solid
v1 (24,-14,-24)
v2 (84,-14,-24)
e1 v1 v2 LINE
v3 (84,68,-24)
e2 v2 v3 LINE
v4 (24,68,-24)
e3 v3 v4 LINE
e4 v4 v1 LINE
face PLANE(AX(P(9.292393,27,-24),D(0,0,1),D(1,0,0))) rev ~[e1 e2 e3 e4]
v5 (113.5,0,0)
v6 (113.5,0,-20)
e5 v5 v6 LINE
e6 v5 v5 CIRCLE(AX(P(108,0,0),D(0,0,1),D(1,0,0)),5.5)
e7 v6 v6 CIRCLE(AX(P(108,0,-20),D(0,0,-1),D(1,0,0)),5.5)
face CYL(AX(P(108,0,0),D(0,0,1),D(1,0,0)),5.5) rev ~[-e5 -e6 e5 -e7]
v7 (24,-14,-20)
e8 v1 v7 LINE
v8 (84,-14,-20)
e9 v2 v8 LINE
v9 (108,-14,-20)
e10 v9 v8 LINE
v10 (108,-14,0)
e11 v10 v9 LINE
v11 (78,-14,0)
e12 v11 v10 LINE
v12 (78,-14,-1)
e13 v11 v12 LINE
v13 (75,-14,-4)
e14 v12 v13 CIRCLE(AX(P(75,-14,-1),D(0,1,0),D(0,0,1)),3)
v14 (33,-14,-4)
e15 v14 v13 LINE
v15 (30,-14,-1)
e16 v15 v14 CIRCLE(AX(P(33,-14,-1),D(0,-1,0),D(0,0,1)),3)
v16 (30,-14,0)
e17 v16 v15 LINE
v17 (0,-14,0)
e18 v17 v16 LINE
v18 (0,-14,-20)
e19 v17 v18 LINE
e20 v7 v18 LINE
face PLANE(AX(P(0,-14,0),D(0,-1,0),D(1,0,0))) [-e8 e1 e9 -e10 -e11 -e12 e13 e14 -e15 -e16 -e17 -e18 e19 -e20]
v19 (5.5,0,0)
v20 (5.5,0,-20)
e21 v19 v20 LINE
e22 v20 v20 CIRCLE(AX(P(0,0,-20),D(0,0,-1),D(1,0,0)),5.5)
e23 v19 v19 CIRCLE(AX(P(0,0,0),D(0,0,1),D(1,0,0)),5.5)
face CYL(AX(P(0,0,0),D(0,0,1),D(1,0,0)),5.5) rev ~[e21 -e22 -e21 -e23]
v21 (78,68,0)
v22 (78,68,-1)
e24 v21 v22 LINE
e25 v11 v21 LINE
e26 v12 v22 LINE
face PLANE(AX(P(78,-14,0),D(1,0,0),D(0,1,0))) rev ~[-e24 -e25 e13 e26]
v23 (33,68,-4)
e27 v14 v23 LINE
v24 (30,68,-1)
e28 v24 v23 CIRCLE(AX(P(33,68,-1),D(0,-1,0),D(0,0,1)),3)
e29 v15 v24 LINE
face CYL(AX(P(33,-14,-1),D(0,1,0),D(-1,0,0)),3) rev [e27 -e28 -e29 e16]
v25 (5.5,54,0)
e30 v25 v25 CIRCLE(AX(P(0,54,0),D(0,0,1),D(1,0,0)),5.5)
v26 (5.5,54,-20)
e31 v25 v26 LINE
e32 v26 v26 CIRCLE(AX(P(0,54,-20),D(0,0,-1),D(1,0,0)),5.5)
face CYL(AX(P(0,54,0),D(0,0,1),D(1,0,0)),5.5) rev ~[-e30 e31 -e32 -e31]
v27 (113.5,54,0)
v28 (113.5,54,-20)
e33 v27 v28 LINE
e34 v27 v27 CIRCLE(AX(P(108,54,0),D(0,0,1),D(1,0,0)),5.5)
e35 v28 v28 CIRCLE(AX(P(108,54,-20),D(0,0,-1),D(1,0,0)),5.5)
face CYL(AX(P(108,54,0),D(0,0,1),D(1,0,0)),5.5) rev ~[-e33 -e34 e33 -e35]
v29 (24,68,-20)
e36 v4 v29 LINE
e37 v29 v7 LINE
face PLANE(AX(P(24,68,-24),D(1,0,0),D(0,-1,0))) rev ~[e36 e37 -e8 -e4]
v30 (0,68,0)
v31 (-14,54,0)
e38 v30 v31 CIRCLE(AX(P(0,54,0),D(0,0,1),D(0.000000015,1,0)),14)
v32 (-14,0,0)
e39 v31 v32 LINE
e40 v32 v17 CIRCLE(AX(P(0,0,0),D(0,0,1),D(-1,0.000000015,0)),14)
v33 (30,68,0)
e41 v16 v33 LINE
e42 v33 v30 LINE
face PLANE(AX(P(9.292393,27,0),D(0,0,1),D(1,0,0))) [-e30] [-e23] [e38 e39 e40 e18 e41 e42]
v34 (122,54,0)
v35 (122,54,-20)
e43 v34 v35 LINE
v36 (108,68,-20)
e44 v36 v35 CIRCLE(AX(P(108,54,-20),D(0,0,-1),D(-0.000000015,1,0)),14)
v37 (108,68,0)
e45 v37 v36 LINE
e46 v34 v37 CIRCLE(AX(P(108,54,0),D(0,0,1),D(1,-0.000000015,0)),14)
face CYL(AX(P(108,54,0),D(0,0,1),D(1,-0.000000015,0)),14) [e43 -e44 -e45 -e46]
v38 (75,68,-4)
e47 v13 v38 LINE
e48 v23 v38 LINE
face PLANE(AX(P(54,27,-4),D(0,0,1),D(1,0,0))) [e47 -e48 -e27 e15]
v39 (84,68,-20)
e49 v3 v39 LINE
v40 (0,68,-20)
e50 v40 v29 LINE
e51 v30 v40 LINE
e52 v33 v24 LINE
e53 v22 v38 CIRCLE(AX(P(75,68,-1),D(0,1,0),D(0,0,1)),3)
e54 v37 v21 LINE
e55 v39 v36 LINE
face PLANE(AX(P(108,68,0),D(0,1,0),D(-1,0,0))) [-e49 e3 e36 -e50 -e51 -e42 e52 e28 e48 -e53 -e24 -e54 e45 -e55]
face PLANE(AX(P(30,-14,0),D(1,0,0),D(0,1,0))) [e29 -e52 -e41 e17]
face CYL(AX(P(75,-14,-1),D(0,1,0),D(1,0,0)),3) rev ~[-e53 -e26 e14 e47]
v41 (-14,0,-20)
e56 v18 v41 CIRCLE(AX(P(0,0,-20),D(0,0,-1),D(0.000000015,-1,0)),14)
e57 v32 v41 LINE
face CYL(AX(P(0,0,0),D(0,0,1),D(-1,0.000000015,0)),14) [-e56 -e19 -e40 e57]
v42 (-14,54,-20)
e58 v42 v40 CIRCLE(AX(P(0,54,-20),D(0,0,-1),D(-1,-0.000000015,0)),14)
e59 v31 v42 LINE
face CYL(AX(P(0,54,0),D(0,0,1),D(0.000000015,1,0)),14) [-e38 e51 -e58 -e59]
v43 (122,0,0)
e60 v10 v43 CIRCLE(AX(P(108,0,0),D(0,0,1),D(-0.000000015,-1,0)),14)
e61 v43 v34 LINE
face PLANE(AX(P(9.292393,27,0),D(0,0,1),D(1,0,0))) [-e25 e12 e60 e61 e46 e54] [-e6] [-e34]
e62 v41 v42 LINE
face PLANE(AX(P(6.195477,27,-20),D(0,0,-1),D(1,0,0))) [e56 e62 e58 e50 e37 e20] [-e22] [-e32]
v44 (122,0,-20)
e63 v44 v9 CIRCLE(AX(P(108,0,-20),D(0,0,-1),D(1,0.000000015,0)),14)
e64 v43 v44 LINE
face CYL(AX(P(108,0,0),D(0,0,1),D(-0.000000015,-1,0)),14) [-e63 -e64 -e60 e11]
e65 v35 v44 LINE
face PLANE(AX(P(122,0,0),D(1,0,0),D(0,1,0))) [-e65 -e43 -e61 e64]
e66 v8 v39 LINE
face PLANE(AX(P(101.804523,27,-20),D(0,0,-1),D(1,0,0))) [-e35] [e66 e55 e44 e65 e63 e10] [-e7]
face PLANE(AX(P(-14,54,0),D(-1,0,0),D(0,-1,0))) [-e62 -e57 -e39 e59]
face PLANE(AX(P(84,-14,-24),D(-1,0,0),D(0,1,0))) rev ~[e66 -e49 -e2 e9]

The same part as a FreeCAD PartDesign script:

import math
import FreeCAD as App
import Part
import Sketcher

V = App.Vector
Q = App.Units.Quantity


def edges_at(feature, points):
    """Names of the edges that pass closest to the given points."""
    edges = feature.Shape.Edges
    near = lambda p: min(range(len(edges)), key=lambda i: edges[i].distToShape(Part.Vertex(*p))[0])
    return sorted({f"Edge{near(p) + 1}" for p in points})


def add_polygon(sketch, points):
    """Adds a closed chain of lines whose ends are joined by coincident constraints."""
    first, n = sketch.GeometryCount, len(points)
    for a, b in zip(points, points[1:] + points[:1]):
        sketch.addGeometry(Part.LineSegment(App.Vector(*a, 0), App.Vector(*b, 0)), False)
    for i in range(n):
        sketch.addConstraint(Sketcher.Constraint("Coincident", first + i, 2, first + (i + 1) % n, 1))

doc = App.newDocument("Part")
body = doc.addObject("PartDesign::Body", "Body")

# Sketch on XY plane
sketch1 = body.newObject("Sketcher::SketchObject", "Sketch")
sketch1.AttachmentSupport = (doc.getObject("XY_Plane"), [""])
sketch1.MapMode = "FlatFace"
sketch1.addGeometry([
    Part.LineSegment(V(-14, 54, 0), V(-14, 0, 0)),  # 0
    Part.ArcOfCircle(Part.Circle(V(0, 0, 0), V(0, 0, 1), 14), math.radians(180), math.radians(270)),  # 1
    Part.LineSegment(V(0, -14, 0), V(108, -14, 0)),  # 2
    Part.ArcOfCircle(Part.Circle(V(108, 0, 0), V(0, 0, 1), 14), math.radians(-90), math.radians(0)),  # 3
    Part.LineSegment(V(122, 0, 0), V(122, 54, 0)),  # 4
    Part.ArcOfCircle(Part.Circle(V(108, 54, 0), V(0, 0, 1), 14), math.radians(0), math.radians(90)),  # 5
    Part.LineSegment(V(108, 68, 0), V(0, 68, 0)),  # 6
    Part.ArcOfCircle(Part.Circle(V(0, 54, 0), V(0, 0, 1), 14), math.radians(90), math.radians(180)),  # 7
    Part.Circle(V(0, 0, 0), V(0, 0, 1), 6),  # 8
    Part.Circle(V(108, 0, 0), V(0, 0, 1), 6),  # 9
    Part.Circle(V(0, 54, 0), V(0, 0, 1), 6),  # 10
    Part.Circle(V(108, 54, 0), V(0, 0, 1), 6),  # 11
], False)
sketch1.addConstraint([
    Sketcher.Constraint("Tangent", 0, 2, 1, 1),
    Sketcher.Constraint("Tangent", 1, 2, 2, 1),
    Sketcher.Constraint("Tangent", 2, 2, 3, 1),
    Sketcher.Constraint("Tangent", 3, 2, 4, 1),
    Sketcher.Constraint("Tangent", 4, 2, 5, 1),
    Sketcher.Constraint("Tangent", 5, 2, 6, 1),
    Sketcher.Constraint("Tangent", 6, 2, 7, 1),
    Sketcher.Constraint("Tangent", 7, 2, 0, 1),
    Sketcher.Constraint("Vertical", 0),
    Sketcher.Constraint("Horizontal", 2),
    Sketcher.Constraint("Vertical", 4),
    Sketcher.Constraint("Horizontal", 6),
    Sketcher.Constraint("Coincident", 1, 3, -1, 1),
    Sketcher.Constraint("Coincident", 8, 3, -1, 1),
    Sketcher.Constraint("Coincident", 9, 3, 3, 3),
    Sketcher.Constraint("Coincident", 10, 3, 7, 3),
    Sketcher.Constraint("Coincident", 11, 3, 5, 3),
    Sketcher.Constraint("Equal", 1, 3),
    Sketcher.Constraint("Equal", 3, 5),
    Sketcher.Constraint("Equal", 5, 7),
    Sketcher.Constraint("Equal", 8, 9),
    Sketcher.Constraint("Equal", 9, 10),
    Sketcher.Constraint("Equal", 10, 11),
    Sketcher.Constraint("Diameter", 8, Q("11 mm")),
    Sketcher.Constraint("Radius", 1, Q("14 mm")),
    Sketcher.Constraint("DistanceX", 2, 1, 2, 2, Q("108 mm")),
    Sketcher.Constraint("DistanceY", 0, 2, 0, 1, Q("54 mm")),
])
pad1 = body.newObject("PartDesign::Pad", "Pad")
pad1.Profile = sketch1
pad1.Length = 24
pad1.Reversed = True

# Sketch on XY plane
sketch2 = body.newObject("Sketcher::SketchObject", "Sketch001")
sketch2.AttachmentSupport = (doc.getObject("XY_Plane"), [""])
sketch2.MapMode = "FlatFace"
add_polygon(sketch2, [(30, 68), (30, -14), (78, -14), (78, 68)])  # lines 0-3
sketch2.addConstraint([
    Sketcher.Constraint("Vertical", 0),
    Sketcher.Constraint("Horizontal", 1),
    Sketcher.Constraint("Vertical", 2),
    Sketcher.Constraint("Horizontal", 3),
    Sketcher.Constraint("DistanceX", 1, 1, 1, 2, Q("48 mm")),
    Sketcher.Constraint("DistanceY", 0, 2, 0, 1, Q("82 mm")),
    Sketcher.Constraint("DistanceX", -1, 1, 0, 2, Q("30 mm")),
    Sketcher.Constraint("DistanceY", 0, 2, -1, 1, Q("14 mm")),
])
pocket1 = body.newObject("PartDesign::Pocket", "Pocket")
pocket1.Profile = sketch2
pocket1.Length = 4
doc.recompute()

fillet = body.newObject("PartDesign::Fillet", "Fillet")
fillet.Base = (pocket1, edges_at(pocket1, [(78, 27, -4), (30, 27, -4)]))
fillet.Radius = 3

# Sketch on XY plane
sketch3 = body.newObject("Sketcher::SketchObject", "Sketch002")
sketch3.AttachmentSupport = (doc.getObject("XY_Plane"), [""])
sketch3.MapMode = "FlatFace"
sketch3.AttachmentOffset = App.Placement(V(0, 0, -24), App.Rotation())
sketch3.addGeometry([
    Part.LineSegment(V(24, 68, 0), V(24, -14, 0)),  # 0
    Part.LineSegment(V(24, -14, 0), V(0, -14, 0)),  # 1
    Part.ArcOfCircle(Part.Circle(V(0, 0, 0), V(0, 0, 1), 14), math.radians(180), math.radians(270)),  # 2
    Part.LineSegment(V(-14, 0, 0), V(-14, 54, 0)),  # 3
    Part.ArcOfCircle(Part.Circle(V(0, 54, 0), V(0, 0, 1), 14), math.radians(90), math.radians(180)),  # 4
    Part.LineSegment(V(0, 68, 0), V(24, 68, 0)),  # 5
    Part.Circle(V(0, 54, 0), V(0, 0, 1), 6),  # 6
    Part.Circle(V(0, 0, 0), V(0, 0, 1), 6),  # 7
    Part.LineSegment(V(108, -14, 0), V(84, -14, 0)),  # 8
    Part.LineSegment(V(84, -14, 0), V(84, 68, 0)),  # 9
    Part.LineSegment(V(84, 68, 0), V(108, 68, 0)),  # 10
    Part.ArcOfCircle(Part.Circle(V(108, 54, 0), V(0, 0, 1), 14), math.radians(0), math.radians(90)),  # 11
    Part.LineSegment(V(122, 54, 0), V(122, 0, 0)),  # 12
    Part.ArcOfCircle(Part.Circle(V(108, 0, 0), V(0, 0, 1), 14), math.radians(-90), math.radians(0)),  # 13
    Part.Circle(V(108, 54, 0), V(0, 0, 1), 6),  # 14
    Part.Circle(V(108, 0, 0), V(0, 0, 1), 6),  # 15
], False)
sketch3.addConstraint([
    Sketcher.Constraint("Coincident", 0, 2, 1, 1),
    Sketcher.Constraint("Tangent", 1, 2, 2, 2),
    Sketcher.Constraint("Tangent", 2, 1, 3, 1),
    Sketcher.Constraint("Tangent", 3, 2, 4, 2),
    Sketcher.Constraint("Tangent", 4, 1, 5, 1),
    Sketcher.Constraint("Coincident", 5, 2, 0, 1),
    Sketcher.Constraint("Coincident", 8, 2, 9, 1),
    Sketcher.Constraint("Coincident", 9, 2, 10, 1),
    Sketcher.Constraint("Tangent", 10, 2, 11, 2),
    Sketcher.Constraint("Tangent", 11, 1, 12, 1),
    Sketcher.Constraint("Tangent", 12, 2, 13, 2),
    Sketcher.Constraint("Tangent", 13, 1, 8, 1),
    Sketcher.Constraint("Vertical", 0),
    Sketcher.Constraint("Horizontal", 1),
    Sketcher.Constraint("Vertical", 3),
    Sketcher.Constraint("Horizontal", 5),
    Sketcher.Constraint("Horizontal", 8),
    Sketcher.Constraint("Vertical", 9),
    Sketcher.Constraint("Horizontal", 10),
    Sketcher.Constraint("Vertical", 12),
    Sketcher.Constraint("Coincident", 2, 3, -1, 1),
    Sketcher.Constraint("Coincident", 7, 3, -1, 1),
    Sketcher.Constraint("Coincident", 6, 3, 4, 3),
    Sketcher.Constraint("Coincident", 14, 3, 11, 3),
    Sketcher.Constraint("Coincident", 15, 3, 13, 3),
    Sketcher.Constraint("Equal", 2, 4),
    Sketcher.Constraint("Equal", 6, 7),
    Sketcher.Constraint("Equal", 4, 11),
    Sketcher.Constraint("Equal", 11, 13),
    Sketcher.Constraint("Equal", 7, 14),
    Sketcher.Constraint("Equal", 14, 15),
    Sketcher.Constraint("PointOnObject", 13, 3, -1),
    Sketcher.Constraint("Horizontal", 6, 3, 11, 3),
    Sketcher.Constraint("Equal", 5, 8),
    Sketcher.Constraint("Diameter", 6, Q("11 mm")),
    Sketcher.Constraint("Radius", 2, Q("14 mm")),
    Sketcher.Constraint("DistanceX", 1, 2, 1, 1, Q("24 mm")),
    Sketcher.Constraint("DistanceY", 0, 2, 0, 1, Q("82 mm")),
    Sketcher.Constraint("DistanceX", -1, 1, 11, 3, Q("108 mm")),
])
pocket2 = body.newObject("PartDesign::Pocket", "Pocket001")
pocket2.Profile = sketch3
pocket2.Length = 4
pocket2.Reversed = True

doc.recompute()
